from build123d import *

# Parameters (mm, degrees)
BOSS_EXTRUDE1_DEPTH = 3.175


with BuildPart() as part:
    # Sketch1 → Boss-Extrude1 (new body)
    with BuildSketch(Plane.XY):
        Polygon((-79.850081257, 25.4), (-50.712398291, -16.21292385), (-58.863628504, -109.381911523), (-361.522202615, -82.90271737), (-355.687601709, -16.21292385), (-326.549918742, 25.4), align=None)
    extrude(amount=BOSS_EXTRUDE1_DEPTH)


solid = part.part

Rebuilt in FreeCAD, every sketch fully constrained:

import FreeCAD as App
import Part
import Sketcher
from FreeCAD import Vector
Q = App.Units.Quantity

doc = App.newDocument("Part")
body = doc.addObject("PartDesign::Body", "Body")

# Sketch on XY plane
sketch1 = doc.addObject("Sketcher::SketchObject", "Sketch")
body.addObject(sketch1)
sketch1.AttachmentSupport = (doc.XY_Plane, [""])
sketch1.MapMode = "FlatFace"
sketch1.addGeometry([
    Part.LineSegment(Vector(-51, -16, 0), Vector(-80, 25, 0)),  # 0
    Part.LineSegment(Vector(-80, 25, 0), Vector(-327, 25, 0)),  # 1
    Part.LineSegment(Vector(-327, 25, 0), Vector(-356, -16, 0)),  # 2
    Part.LineSegment(Vector(-356, -16, 0), Vector(-362, -83, 0)),  # 3
    Part.LineSegment(Vector(-362, -83, 0), Vector(-59, -109, 0)),  # 4
    Part.LineSegment(Vector(-59, -109, 0), Vector(-51, -16, 0)),  # 5
], False)
sketch1.addConstraint([
    Sketcher.Constraint("Coincident", 0, 2, 1, 1),
    Sketcher.Constraint("Coincident", 1, 2, 2, 1),
    Sketcher.Constraint("Coincident", 2, 2, 3, 1),
    Sketcher.Constraint("Coincident", 3, 2, 4, 1),
    Sketcher.Constraint("Coincident", 4, 2, 5, 1),
    Sketcher.Constraint("Coincident", 5, 2, 0, 1),
    Sketcher.Constraint("Horizontal", 1),
    Sketcher.Constraint("Perpendicular", 3, 4),
    Sketcher.Constraint("Perpendicular", 4, 5),
    Sketcher.Constraint("Horizontal", 2, 2, 5, 2),
    Sketcher.Constraint("Equal", 0, 2),
    Sketcher.Constraint("Distance", 0, Q("2 in")),
    Sketcher.Constraint("DistanceY", -1, 1, 0, 2, Q("1 in")),
    Sketcher.Constraint("Angle", 0, Q("125 deg")),
    Sketcher.Constraint("Angle", 3, Q("-95 deg")),
    Sketcher.Constraint("DistanceX", 2, 2, -1, 1, 355.687602),
    Sketcher.Constraint("DistanceX", 5, 2, -1, 1, 50.712398),
    Sketcher.Constraint("DistanceX", 3, 2, 2, 2, 5.834601),
])
pad1 = doc.addObject("PartDesign::Pad", "Pad")
body.addObject(pad1)
pad1.Profile = sketch1
pad1.Length = Q("0.125 in")

doc.recompute()
